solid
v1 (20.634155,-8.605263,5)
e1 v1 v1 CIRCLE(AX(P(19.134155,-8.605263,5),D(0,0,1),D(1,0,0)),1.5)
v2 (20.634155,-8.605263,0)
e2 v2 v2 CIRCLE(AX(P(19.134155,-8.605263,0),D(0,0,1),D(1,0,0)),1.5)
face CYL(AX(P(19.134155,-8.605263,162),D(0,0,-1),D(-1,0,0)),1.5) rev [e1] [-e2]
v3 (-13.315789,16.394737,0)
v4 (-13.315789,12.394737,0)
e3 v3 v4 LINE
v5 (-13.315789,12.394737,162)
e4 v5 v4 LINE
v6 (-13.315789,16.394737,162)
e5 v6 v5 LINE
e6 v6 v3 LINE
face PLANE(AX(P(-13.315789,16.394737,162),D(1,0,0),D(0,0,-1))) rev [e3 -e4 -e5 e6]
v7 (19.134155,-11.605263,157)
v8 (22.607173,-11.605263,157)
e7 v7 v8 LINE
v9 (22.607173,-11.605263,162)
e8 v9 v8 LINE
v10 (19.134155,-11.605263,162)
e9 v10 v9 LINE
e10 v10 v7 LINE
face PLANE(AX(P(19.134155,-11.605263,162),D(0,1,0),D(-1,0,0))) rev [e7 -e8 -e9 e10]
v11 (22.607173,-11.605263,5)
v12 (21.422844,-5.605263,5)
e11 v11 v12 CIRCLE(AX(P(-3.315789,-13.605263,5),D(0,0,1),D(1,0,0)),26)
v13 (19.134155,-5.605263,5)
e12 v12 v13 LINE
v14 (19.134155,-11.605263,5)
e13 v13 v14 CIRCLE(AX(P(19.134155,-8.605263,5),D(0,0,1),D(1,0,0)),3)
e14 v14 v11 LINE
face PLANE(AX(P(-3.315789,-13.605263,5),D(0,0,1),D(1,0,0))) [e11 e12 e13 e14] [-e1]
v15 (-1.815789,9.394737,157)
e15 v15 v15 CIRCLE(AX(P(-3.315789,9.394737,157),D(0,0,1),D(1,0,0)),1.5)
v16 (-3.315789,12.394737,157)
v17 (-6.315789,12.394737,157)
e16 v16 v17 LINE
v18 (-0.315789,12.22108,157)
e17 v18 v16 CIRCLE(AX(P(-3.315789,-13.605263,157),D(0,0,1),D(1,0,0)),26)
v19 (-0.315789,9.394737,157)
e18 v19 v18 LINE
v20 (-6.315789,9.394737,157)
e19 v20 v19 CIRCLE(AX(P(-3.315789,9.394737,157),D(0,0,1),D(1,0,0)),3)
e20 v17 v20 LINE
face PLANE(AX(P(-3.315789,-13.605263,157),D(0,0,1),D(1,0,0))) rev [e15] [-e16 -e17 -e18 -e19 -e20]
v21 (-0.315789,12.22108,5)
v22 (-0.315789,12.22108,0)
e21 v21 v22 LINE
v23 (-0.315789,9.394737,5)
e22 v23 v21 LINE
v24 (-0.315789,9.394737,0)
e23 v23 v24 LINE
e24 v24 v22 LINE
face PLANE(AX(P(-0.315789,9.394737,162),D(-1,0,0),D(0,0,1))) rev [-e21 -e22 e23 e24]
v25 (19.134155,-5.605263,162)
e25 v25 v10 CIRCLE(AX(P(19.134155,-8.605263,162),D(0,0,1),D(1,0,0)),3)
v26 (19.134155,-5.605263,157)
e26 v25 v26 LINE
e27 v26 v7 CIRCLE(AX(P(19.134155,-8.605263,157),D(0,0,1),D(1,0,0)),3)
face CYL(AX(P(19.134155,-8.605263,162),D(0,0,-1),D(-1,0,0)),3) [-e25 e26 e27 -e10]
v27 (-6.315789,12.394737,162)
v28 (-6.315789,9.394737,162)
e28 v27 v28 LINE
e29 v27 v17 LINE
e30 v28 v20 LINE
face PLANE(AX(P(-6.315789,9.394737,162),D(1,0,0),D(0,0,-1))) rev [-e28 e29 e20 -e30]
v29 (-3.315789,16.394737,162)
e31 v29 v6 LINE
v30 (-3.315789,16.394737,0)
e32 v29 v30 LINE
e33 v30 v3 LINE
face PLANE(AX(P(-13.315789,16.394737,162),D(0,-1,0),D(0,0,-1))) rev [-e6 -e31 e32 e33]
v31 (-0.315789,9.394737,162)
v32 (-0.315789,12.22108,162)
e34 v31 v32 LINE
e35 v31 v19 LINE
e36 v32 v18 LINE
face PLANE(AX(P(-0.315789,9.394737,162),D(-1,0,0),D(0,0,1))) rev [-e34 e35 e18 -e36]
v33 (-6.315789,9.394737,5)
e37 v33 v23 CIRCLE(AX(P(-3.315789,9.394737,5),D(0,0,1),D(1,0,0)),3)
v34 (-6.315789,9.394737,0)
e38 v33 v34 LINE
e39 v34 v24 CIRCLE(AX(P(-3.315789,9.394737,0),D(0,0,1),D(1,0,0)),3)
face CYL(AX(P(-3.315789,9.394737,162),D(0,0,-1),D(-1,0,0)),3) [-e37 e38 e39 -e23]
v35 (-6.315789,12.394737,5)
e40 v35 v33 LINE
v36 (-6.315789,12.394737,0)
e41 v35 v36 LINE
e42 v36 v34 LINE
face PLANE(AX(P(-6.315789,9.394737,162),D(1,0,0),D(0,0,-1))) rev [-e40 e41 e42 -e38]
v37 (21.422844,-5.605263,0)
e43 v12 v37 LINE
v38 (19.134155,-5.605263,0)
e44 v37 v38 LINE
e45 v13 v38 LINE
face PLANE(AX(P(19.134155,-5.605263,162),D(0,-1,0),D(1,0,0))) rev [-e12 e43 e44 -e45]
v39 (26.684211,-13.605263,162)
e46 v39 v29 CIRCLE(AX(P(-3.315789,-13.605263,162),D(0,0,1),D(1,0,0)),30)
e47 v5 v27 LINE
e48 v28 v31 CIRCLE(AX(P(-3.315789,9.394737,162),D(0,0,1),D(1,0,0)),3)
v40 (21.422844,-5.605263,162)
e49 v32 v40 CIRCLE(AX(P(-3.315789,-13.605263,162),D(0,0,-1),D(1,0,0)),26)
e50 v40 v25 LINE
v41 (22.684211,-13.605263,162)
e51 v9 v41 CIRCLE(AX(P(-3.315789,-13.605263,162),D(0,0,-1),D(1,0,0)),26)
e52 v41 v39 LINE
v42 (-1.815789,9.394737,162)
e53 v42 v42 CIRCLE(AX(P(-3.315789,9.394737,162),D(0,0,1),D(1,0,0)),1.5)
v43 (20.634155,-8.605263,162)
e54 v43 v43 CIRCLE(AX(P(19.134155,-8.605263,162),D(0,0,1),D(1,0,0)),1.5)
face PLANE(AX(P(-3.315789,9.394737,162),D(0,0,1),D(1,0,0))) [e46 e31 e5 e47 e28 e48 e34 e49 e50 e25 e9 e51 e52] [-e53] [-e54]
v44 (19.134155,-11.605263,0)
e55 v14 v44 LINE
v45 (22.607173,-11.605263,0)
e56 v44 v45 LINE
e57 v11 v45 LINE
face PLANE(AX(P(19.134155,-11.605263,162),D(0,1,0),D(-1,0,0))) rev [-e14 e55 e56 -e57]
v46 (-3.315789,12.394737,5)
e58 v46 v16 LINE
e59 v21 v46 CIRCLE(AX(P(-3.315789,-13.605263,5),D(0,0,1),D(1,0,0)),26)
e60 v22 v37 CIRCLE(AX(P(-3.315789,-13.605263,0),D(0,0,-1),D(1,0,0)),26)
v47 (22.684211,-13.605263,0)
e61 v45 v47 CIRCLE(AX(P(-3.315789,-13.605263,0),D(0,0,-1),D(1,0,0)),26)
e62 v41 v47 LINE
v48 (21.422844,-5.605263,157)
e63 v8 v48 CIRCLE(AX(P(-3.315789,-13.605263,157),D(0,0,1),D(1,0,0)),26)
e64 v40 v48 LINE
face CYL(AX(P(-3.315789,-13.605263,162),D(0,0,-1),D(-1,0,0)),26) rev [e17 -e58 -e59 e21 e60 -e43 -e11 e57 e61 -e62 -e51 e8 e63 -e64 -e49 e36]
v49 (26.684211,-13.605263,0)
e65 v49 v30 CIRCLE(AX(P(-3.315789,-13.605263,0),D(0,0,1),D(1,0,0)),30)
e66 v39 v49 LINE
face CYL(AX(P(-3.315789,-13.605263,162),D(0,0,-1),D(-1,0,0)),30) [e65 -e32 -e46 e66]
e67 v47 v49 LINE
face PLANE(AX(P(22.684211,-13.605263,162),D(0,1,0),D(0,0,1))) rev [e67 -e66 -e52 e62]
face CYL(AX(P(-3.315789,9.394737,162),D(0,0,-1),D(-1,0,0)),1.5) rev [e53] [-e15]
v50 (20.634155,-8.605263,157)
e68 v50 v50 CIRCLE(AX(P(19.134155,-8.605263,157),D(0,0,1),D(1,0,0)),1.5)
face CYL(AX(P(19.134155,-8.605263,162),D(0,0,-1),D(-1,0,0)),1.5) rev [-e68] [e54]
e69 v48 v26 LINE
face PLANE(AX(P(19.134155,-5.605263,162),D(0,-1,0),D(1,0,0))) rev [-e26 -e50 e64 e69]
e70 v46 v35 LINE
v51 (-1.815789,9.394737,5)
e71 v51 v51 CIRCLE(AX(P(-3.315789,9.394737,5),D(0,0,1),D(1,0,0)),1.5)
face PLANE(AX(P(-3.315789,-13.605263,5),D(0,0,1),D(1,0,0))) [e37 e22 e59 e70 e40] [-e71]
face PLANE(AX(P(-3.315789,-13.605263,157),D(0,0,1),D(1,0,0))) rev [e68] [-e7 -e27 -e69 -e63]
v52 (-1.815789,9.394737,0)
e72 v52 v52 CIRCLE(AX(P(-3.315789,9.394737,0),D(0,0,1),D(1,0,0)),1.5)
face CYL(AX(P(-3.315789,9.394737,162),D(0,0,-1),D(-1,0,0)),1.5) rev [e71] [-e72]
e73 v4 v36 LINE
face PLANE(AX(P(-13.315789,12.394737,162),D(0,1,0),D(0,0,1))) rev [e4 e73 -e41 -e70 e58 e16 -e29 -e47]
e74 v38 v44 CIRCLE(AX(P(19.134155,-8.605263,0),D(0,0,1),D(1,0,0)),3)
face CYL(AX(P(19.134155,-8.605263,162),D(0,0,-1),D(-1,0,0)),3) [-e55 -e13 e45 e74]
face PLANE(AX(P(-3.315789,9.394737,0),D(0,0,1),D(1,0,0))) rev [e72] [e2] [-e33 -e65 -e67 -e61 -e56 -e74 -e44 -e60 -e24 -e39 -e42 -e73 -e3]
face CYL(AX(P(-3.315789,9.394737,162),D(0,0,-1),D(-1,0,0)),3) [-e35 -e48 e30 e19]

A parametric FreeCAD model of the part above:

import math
import FreeCAD as App
import Part
import Sketcher

doc = App.newDocument("Part")
body = doc.addObject("PartDesign::Body", "Body")

sketch1 = body.newObject("Sketcher::SketchObject", "Sketch")
sketch1.AttachmentSupport = (doc.getObject("XY_Plane"), [""])
sketch1.MapMode = "FlatFace"
sketch1.addGeometry(Part.LineSegment(App.Vector(-6.3, 12.4, 0), App.Vector(-6.3, 9.4, 0)), False)
sketch1.addGeometry(Part.ArcOfCircle(Part.Circle(App.Vector(-3.3, 9.4, 0), App.Vector(0, 0, 1), 3), math.radians(180), math.radians(360)), False)
sketch1.addGeometry(Part.LineSegment(App.Vector(-0.3, 9.4, 0), App.Vector(-0.3, 12.2, 0)), False)
sketch1.addGeometry(Part.ArcOfCircle(Part.Circle(App.Vector(-3.3, -13.6, 0), App.Vector(0, 0, 1), 26), math.radians(18), math.radians(83)), False)
sketch1.addGeometry(Part.LineSegment(App.Vector(21.4, -5.6, 0), App.Vector(19.1, -5.6, 0)), False)
sketch1.addGeometry(Part.ArcOfCircle(Part.Circle(App.Vector(19.1, -8.6, 0), App.Vector(0, 0, 1), 3), math.radians(90), math.radians(270)), False)
sketch1.addGeometry(Part.LineSegment(App.Vector(19.1, -11.6, 0), App.Vector(22.6, -11.6, 0)), False)
sketch1.addGeometry(Part.ArcOfCircle(Part.Circle(App.Vector(-3.3, -13.6, 0), App.Vector(0, 0, 1), 26), math.radians(0), math.radians(4.41)), False)
sketch1.addGeometry(Part.LineSegment(App.Vector(22.7, -13.6, 0), App.Vector(26.7, -13.6, 0)), False)
sketch1.addGeometry(Part.ArcOfCircle(Part.Circle(App.Vector(-3.3, -13.6, 0), App.Vector(0, 0, 1), 30), math.radians(0), math.radians(90)), False)
sketch1.addGeometry(Part.LineSegment(App.Vector(-3.3, 16.4, 0), App.Vector(-13.3, 16.4, 0)), False)
sketch1.addGeometry(Part.LineSegment(App.Vector(-13.3, 16.4, 0), App.Vector(-13.3, 12.4, 0)), False)
sketch1.addGeometry(Part.LineSegment(App.Vector(-13.3, 12.4, 0), App.Vector(-6.3, 12.4, 0)), False)
sketch1.addGeometry(Part.Circle(App.Vector(19.1, -8.6, 0), App.Vector(0, 0, 1), 1.5), False)
sketch1.addGeometry(Part.Circle(App.Vector(-3.3, 9.4, 0), App.Vector(0, 0, 1), 1.5), False)
sketch1.addConstraint(Sketcher.Constraint("Tangent", 0, 2, 1, 1))
sketch1.addConstraint(Sketcher.Constraint("Tangent", 1, 2, 2, 1))
sketch1.addConstraint(Sketcher.Constraint("Coincident", 2, 2, 3, 2))
sketch1.addConstraint(Sketcher.Constraint("Coincident", 3, 1, 4, 1))
sketch1.addConstraint(Sketcher.Constraint("Tangent", 4, 2, 5, 1))
sketch1.addConstraint(Sketcher.Constraint("Tangent", 5, 2, 6, 1))
sketch1.addConstraint(Sketcher.Constraint("Coincident", 6, 2, 7, 2))
sketch1.addConstraint(Sketcher.Constraint("Coincident", 7, 1, 8, 1))
sketch1.addConstraint(Sketcher.Constraint("Coincident", 8, 2, 9, 1))
sketch1.addConstraint(Sketcher.Constraint("Tangent", 9, 2, 10, 1))
sketch1.addConstraint(Sketcher.Constraint("Coincident", 10, 2, 11, 1))
sketch1.addConstraint(Sketcher.Constraint("Coincident", 11, 2, 12, 1))
sketch1.addConstraint(Sketcher.Constraint("Coincident", 12, 2, 0, 1))
sketch1.addConstraint(Sketcher.Constraint("Vertical", 0))
sketch1.addConstraint(Sketcher.Constraint("Vertical", 2))
sketch1.addConstraint(Sketcher.Constraint("Horizontal", 4))
sketch1.addConstraint(Sketcher.Constraint("Horizontal", 6))
sketch1.addConstraint(Sketcher.Constraint("Horizontal", 8))
sketch1.addConstraint(Sketcher.Constraint("Horizontal", 10))
sketch1.addConstraint(Sketcher.Constraint("Vertical", 11))
sketch1.addConstraint(Sketcher.Constraint("Horizontal", 12))
sketch1.addConstraint(Sketcher.Constraint("Coincident", 7, 3, 3, 3))
sketch1.addConstraint(Sketcher.Constraint("Coincident", 9, 3, 3, 3))
sketch1.addConstraint(Sketcher.Constraint("Coincident", 13, 3, 5, 3))
sketch1.addConstraint(Sketcher.Constraint("Coincident", 14, 3, 1, 3))
sketch1.addConstraint(Sketcher.Constraint("Equal", 1, 5))
sketch1.addConstraint(Sketcher.Constraint("Equal", 3, 7))
sketch1.addConstraint(Sketcher.Constraint("Equal", 13, 14))
sketch1.addConstraint(Sketcher.Constraint("Horizontal", 9, 3, 7, 1))
sketch1.addConstraint(Sketcher.Constraint("Vertical", 1, 3, 3, 3))
sketch1.addConstraint(Sketcher.Constraint("Equal", 8, 11))
sketch1.addConstraint(Sketcher.Constraint("Diameter", 13, 3.0))
sketch1.addConstraint(Sketcher.Constraint("Radius", 1, 3.0))
sketch1.addConstraint(Sketcher.Constraint("Radius", 3, 26.0))
sketch1.addConstraint(Sketcher.Constraint("Radius", 9, 30.0))
sketch1.addConstraint(Sketcher.Constraint("DistanceX", 10, 2, 10, 1, 10.0))
sketch1.addConstraint(Sketcher.Constraint("DistanceY", 0, 2, 0, 1, 3.0))
sketch1.addConstraint(Sketcher.Constraint("DistanceY", 3, 3, 5, 3, 5.0))
sketch1.addConstraint(Sketcher.Constraint("DistanceX", 4, 2, 4, 1, 2.288689))
sketch1.addConstraint(Sketcher.Constraint("DistanceX", 1, 3, -1, 1, 3.315789))
sketch1.addConstraint(Sketcher.Constraint("DistanceY", -1, 1, 2, 2, 12.22108))
pad1 = body.newObject("PartDesign::Pad", "Pad")
pad1.Profile = sketch1
pad1.Length = 162

sketch2 = body.newObject("Sketcher::SketchObject", "Sketch001")
sketch2.AttachmentSupport = (doc.getObject("XY_Plane"), [""])
sketch2.MapMode = "FlatFace"
sketch2.AttachmentOffset = App.Placement(App.Vector(0, 0, 81), App.Rotation())
sketch2.addGeometry(Part.LineSegment(App.Vector(-3, 12, 0), App.Vector(-13, 12, 0)), False)
sketch2.addGeometry(Part.LineSegment(App.Vector(-13, 12, 0), App.Vector(-19, 7, 0)), False)
sketch2.addGeometry(Part.ArcOfCircle(Part.Circle(App.Vector(-3, -14, 0), App.Vector(0, 0, 1), 26), math.radians(126), math.radians(450)), False)
sketch2.addConstraint(Sketcher.Constraint("Coincident", 0, 2, 1, 1))
sketch2.addConstraint(Sketcher.Constraint("Coincident", 1, 2, 2, 1))
sketch2.addConstraint(Sketcher.Constraint("Tangent", 2, 2, 0, 1))
sketch2.addConstraint(Sketcher.Constraint("Horizontal", 0))
sketch2.addConstraint(Sketcher.Constraint("Radius", 2, 26.0))
sketch2.addConstraint(Sketcher.Constraint("DistanceX", 0, 2, 0, 1, 10.0))
sketch2.addConstraint(Sketcher.Constraint("DistanceX", 2, 3, -1, 1, 3.315789))
sketch2.addConstraint(Sketcher.Constraint("DistanceX", 1, 2, -1, 1, 18.728718))
sketch2.addConstraint(Sketcher.Constraint("DistanceY", 2, 3, -1, 1, 13.605263))
pocket1 = body.newObject("PartDesign::Pocket", "Pocket")
pocket1.Profile = sketch2
pocket1.Length = 152
pocket1.Midplane = True

doc.recompute()
